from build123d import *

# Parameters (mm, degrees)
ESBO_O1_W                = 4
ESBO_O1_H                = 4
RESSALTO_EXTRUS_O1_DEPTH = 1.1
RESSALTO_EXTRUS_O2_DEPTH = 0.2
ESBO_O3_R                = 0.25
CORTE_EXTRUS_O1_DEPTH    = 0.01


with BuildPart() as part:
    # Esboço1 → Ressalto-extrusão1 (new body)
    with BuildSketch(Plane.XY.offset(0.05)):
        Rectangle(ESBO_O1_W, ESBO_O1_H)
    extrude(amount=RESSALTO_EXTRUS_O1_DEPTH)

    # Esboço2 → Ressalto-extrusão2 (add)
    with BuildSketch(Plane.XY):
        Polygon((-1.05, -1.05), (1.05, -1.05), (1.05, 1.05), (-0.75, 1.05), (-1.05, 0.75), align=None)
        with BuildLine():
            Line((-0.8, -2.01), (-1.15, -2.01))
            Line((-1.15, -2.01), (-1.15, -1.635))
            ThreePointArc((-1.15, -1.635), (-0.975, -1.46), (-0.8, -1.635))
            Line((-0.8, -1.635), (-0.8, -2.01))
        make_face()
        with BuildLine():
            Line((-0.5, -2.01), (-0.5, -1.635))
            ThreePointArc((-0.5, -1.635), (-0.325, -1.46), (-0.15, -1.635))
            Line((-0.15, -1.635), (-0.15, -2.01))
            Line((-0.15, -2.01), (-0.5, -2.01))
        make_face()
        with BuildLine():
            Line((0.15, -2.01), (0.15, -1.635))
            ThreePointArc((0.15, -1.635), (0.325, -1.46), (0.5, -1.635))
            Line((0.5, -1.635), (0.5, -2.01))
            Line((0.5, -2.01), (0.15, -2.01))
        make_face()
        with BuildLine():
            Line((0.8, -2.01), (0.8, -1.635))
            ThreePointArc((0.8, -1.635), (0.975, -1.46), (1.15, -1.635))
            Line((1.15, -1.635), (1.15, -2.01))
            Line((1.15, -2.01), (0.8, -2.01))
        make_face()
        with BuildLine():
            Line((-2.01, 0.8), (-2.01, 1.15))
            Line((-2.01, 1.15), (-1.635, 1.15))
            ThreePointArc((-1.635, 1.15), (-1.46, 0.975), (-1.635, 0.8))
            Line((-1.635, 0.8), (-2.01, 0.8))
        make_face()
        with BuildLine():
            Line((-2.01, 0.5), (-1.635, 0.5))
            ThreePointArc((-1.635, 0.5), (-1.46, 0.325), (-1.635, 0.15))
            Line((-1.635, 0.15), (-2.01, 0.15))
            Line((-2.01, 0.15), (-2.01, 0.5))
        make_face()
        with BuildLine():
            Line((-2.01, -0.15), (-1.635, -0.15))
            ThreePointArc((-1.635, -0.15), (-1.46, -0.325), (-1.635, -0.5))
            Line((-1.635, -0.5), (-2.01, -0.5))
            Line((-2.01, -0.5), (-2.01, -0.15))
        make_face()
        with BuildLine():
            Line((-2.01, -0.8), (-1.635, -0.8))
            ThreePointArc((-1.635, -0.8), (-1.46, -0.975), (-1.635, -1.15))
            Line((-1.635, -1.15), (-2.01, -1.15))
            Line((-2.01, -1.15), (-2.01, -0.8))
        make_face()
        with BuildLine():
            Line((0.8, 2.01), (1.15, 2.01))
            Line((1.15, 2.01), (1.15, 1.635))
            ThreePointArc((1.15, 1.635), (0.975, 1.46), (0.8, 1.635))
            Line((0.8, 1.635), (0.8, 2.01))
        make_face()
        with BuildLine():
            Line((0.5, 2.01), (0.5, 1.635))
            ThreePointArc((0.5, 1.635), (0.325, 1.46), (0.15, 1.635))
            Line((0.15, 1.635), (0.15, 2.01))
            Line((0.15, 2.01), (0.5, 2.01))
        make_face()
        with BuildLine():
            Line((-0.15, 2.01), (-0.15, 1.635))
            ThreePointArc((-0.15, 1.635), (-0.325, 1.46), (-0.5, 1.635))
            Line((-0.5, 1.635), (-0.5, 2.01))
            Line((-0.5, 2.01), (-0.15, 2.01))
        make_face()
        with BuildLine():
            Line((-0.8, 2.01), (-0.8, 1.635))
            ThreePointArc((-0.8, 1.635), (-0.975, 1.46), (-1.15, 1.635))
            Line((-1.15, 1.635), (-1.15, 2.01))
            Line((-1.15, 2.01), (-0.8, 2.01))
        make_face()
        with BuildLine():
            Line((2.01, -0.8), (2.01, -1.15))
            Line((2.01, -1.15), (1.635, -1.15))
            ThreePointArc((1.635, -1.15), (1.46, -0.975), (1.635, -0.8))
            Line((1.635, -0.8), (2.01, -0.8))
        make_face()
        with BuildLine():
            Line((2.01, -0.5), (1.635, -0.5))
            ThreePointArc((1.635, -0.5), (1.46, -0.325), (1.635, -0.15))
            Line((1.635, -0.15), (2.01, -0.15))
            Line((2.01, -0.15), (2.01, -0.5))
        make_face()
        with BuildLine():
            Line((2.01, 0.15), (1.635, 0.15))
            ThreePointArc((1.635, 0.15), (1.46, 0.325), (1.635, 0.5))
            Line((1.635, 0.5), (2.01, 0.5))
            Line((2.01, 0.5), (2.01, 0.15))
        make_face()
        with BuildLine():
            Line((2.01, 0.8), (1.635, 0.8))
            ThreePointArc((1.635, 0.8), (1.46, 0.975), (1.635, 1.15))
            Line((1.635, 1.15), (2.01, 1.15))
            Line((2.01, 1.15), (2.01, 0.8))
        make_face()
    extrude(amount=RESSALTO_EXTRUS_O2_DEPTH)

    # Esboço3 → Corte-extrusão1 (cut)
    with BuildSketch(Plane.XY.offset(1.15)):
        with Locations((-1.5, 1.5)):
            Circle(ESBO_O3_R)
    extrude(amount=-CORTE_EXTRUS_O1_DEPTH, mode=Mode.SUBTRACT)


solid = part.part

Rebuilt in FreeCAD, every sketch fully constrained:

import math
import FreeCAD as App
import Part
import Sketcher

V = App.Vector
Q = App.Units.Quantity

doc = App.newDocument("Part")
body = doc.addObject("PartDesign::Body", "Body")

# Sketch on XY plane
sketch1 = body.newObject("Sketcher::SketchObject", "Sketch")
sketch1.AttachmentSupport = (doc.getObject("XY_Plane"), [""])
sketch1.MapMode = "FlatFace"
sketch1.AttachmentOffset = App.Placement(V(0, 0, 0.05), App.Rotation())
sketch1.addGeometry([
    Part.LineSegment(V(-2, 2, 0), V(-2, -2, 0)),
    Part.LineSegment(V(-2, -2, 0), V(2, -2, 0)),
    Part.LineSegment(V(2, -2, 0), V(2, 2, 0)),
    Part.LineSegment(V(2, 2, 0), V(-2, 2, 0)),
], False)
sketch1.addConstraint([
    Sketcher.Constraint("Coincident", 0, 2, 1, 1),
    Sketcher.Constraint("Coincident", 1, 2, 2, 1),
    Sketcher.Constraint("Coincident", 2, 2, 3, 1),
    Sketcher.Constraint("Coincident", 3, 2, 0, 1),
    Sketcher.Constraint("Vertical", 0),
    Sketcher.Constraint("Horizontal", 1),
    Sketcher.Constraint("Vertical", 2),
    Sketcher.Constraint("Horizontal", 3),
    Sketcher.Constraint("Symmetric", 0, 2, 2, 2, -1, 1),
    Sketcher.Constraint("Equal", 3, 0),
    Sketcher.Constraint("DistanceX", 1, 1, 1, 2, Q("4 mm")),
])
pad1 = body.newObject("PartDesign::Pad", "Pad")
pad1.Profile = sketch1
pad1.Length = 1.1

# Sketch on XY plane
sketch2 = body.newObject("Sketcher::SketchObject", "Sketch001")
sketch2.AttachmentSupport = (doc.getObject("XY_Plane"), [""])
sketch2.MapMode = "FlatFace"
sketch2.addGeometry([
    Part.LineSegment(V(-1.05, -1.05, 0), V(1.05, -1.05, 0)),  # 0
    Part.LineSegment(V(1.05, -1.05, 0), V(1.05, 1.05, 0)),  # 1
    Part.LineSegment(V(1.05, 1.05, 0), V(-0.75, 1.05, 0)),  # 2
    Part.LineSegment(V(-0.75, 1.05, 0), V(-1.05, 0.75, 0)),  # 3
    Part.LineSegment(V(-1.05, 0.75, 0), V(-1.05, -1.05, 0)),  # 4
    Part.LineSegment(V(-1.15, -2.01, 0), V(-0.8, -2.01, 0)),  # 5
    Part.LineSegment(V(-0.8, -2.01, 0), V(-0.8, -1.64, 0)),  # 6
    Part.ArcOfCircle(Part.Circle(V(-0.97, -1.64, 0), V(0, 0, 1), 0.17), math.radians(0), math.radians(180)),  # 7
    Part.LineSegment(V(-1.15, -1.64, 0), V(-1.15, -2.01, 0)),  # 8
    Part.LineSegment(V(-0.5, -1.64, 0), V(-0.5, -2.01, 0)),  # 9
    Part.LineSegment(V(-0.5, -2.01, 0), V(-0.15, -2.01, 0)),  # 10
    Part.LineSegment(V(-0.15, -2.01, 0), V(-0.15, -1.64, 0)),  # 11
    Part.ArcOfCircle(Part.Circle(V(-0.33, -1.64, 0), V(0, 0, 1), 0.17), math.radians(0), math.radians(180)),  # 12
    Part.LineSegment(V(0.15, -1.64, 0), V(0.15, -2.01, 0)),  # 13
    Part.LineSegment(V(0.15, -2.01, 0), V(0.5, -2.01, 0)),  # 14
    Part.LineSegment(V(0.5, -2.01, 0), V(0.5, -1.64, 0)),  # 15
    Part.ArcOfCircle(Part.Circle(V(0.33, -1.64, 0), V(0, 0, 1), 0.17), math.radians(0), math.radians(180)),  # 16
    Part.LineSegment(V(0.8, -1.64, 0), V(0.8, -2.01, 0)),  # 17
    Part.LineSegment(V(0.8, -2.01, 0), V(1.15, -2.01, 0)),  # 18
    Part.LineSegment(V(1.15, -2.01, 0), V(1.15, -1.64, 0)),  # 19
    Part.ArcOfCircle(Part.Circle(V(0.97, -1.64, 0), V(0, 0, 1), 0.17), math.radians(0), math.radians(180)),  # 20
    Part.LineSegment(V(-2.01, 1.15, 0), V(-2.01, 0.8, 0)),  # 21
    Part.LineSegment(V(-2.01, 0.8, 0), V(-1.64, 0.8, 0)),  # 22
    Part.ArcOfCircle(Part.Circle(V(-1.64, 0.97, 0), V(0, 0, 1), 0.17), math.radians(-90), math.radians(90)),  # 23
    Part.LineSegment(V(-1.64, 1.15, 0), V(-2.01, 1.15, 0)),  # 24
    Part.LineSegment(V(-1.64, 0.5, 0), V(-2.01, 0.5, 0)),  # 25
    Part.LineSegment(V(-2.01, 0.5, 0), V(-2.01, 0.15, 0)),  # 26
    Part.LineSegment(V(-2.01, 0.15, 0), V(-1.64, 0.15, 0)),  # 27
    Part.ArcOfCircle(Part.Circle(V(-1.64, 0.33, 0), V(0, 0, 1), 0.17), math.radians(-90), math.radians(90)),  # 28
    Part.LineSegment(V(-1.64, -0.15, 0), V(-2.01, -0.15, 0)),  # 29
    Part.LineSegment(V(-2.01, -0.15, 0), V(-2.01, -0.5, 0)),  # 30
    Part.LineSegment(V(-2.01, -0.5, 0), V(-1.64, -0.5, 0)),  # 31
    Part.ArcOfCircle(Part.Circle(V(-1.64, -0.33, 0), V(0, 0, 1), 0.17), math.radians(-90), math.radians(90)),  # 32
    Part.LineSegment(V(-1.64, -0.8, 0), V(-2.01, -0.8, 0)),  # 33
    Part.LineSegment(V(-2.01, -0.8, 0), V(-2.01, -1.15, 0)),  # 34
    Part.LineSegment(V(-2.01, -1.15, 0), V(-1.64, -1.15, 0)),  # 35
    Part.ArcOfCircle(Part.Circle(V(-1.64, -0.97, 0), V(0, 0, 1), 0.17), math.radians(-90), math.radians(90)),  # 36
    Part.LineSegment(V(1.15, 2.01, 0), V(0.8, 2.01, 0)),  # 37
    Part.LineSegment(V(0.8, 2.01, 0), V(0.8, 1.64, 0)),  # 38
    Part.ArcOfCircle(Part.Circle(V(0.97, 1.64, 0), V(0, 0, 1), 0.17), math.radians(180), math.radians(360)),  # 39
    Part.LineSegment(V(1.15, 1.64, 0), V(1.15, 2.01, 0)),  # 40
    Part.LineSegment(V(0.5, 1.64, 0), V(0.5, 2.01, 0)),  # 41
    Part.LineSegment(V(0.5, 2.01, 0), V(0.15, 2.01, 0)),  # 42
    Part.LineSegment(V(0.15, 2.01, 0), V(0.15, 1.64, 0)),  # 43
    Part.ArcOfCircle(Part.Circle(V(0.33, 1.64, 0), V(0, 0, 1), 0.17), math.radians(180), math.radians(360)),  # 44
    Part.LineSegment(V(-0.15, 1.64, 0), V(-0.15, 2.01, 0)),  # 45
    Part.LineSegment(V(-0.15, 2.01, 0), V(-0.5, 2.01, 0)),  # 46
    Part.LineSegment(V(-0.5, 2.01, 0), V(-0.5, 1.64, 0)),  # 47
    Part.ArcOfCircle(Part.Circle(V(-0.33, 1.64, 0), V(0, 0, 1), 0.17), math.radians(180), math.radians(360)),  # 48
    Part.LineSegment(V(-0.8, 1.64, 0), V(-0.8, 2.01, 0)),  # 49
    Part.LineSegment(V(-0.8, 2.01, 0), V(-1.15, 2.01, 0)),  # 50
    Part.LineSegment(V(-1.15, 2.01, 0), V(-1.15, 1.64, 0)),  # 51
    Part.ArcOfCircle(Part.Circle(V(-0.97, 1.64, 0), V(0, 0, 1), 0.17), math.radians(180), math.radians(360)),  # 52
    Part.LineSegment(V(2.01, -1.15, 0), V(2.01, -0.8, 0)),  # 53
    Part.LineSegment(V(2.01, -0.8, 0), V(1.64, -0.8, 0)),  # 54
    Part.ArcOfCircle(Part.Circle(V(1.64, -0.97, 0), V(0, 0, 1), 0.17), math.radians(90), math.radians(270)),  # 55
    Part.LineSegment(V(1.64, -1.15, 0), V(2.01, -1.15, 0)),  # 56
    Part.LineSegment(V(1.64, -0.5, 0), V(2.01, -0.5, 0)),  # 57
    Part.LineSegment(V(2.01, -0.5, 0), V(2.01, -0.15, 0)),  # 58
    Part.LineSegment(V(2.01, -0.15, 0), V(1.64, -0.15, 0)),  # 59
    Part.ArcOfCircle(Part.Circle(V(1.64, -0.33, 0), V(0, 0, 1), 0.17), math.radians(90), math.radians(270)),  # 60
    Part.LineSegment(V(1.64, 0.15, 0), V(2.01, 0.15, 0)),  # 61
    Part.LineSegment(V(2.01, 0.15, 0), V(2.01, 0.5, 0)),  # 62
    Part.LineSegment(V(2.01, 0.5, 0), V(1.64, 0.5, 0)),  # 63
    Part.ArcOfCircle(Part.Circle(V(1.64, 0.33, 0), V(0, 0, 1), 0.17), math.radians(90), math.radians(270)),  # 64
    Part.LineSegment(V(1.64, 0.8, 0), V(2.01, 0.8, 0)),  # 65
    Part.LineSegment(V(2.01, 0.8, 0), V(2.01, 1.15, 0)),  # 66
    Part.LineSegment(V(2.01, 1.15, 0), V(1.64, 1.15, 0)),  # 67
    Part.ArcOfCircle(Part.Circle(V(1.64, 0.97, 0), V(0, 0, 1), 0.17), math.radians(90), math.radians(270)),  # 68
], False)
sketch2.addConstraint([
    Sketcher.Constraint("Coincident", 0, 2, 1, 1),
    Sketcher.Constraint("Coincident", 1, 2, 2, 1),
    Sketcher.Constraint("Coincident", 2, 2, 3, 1),
    Sketcher.Constraint("Coincident", 3, 2, 4, 1),
    Sketcher.Constraint("Coincident", 4, 2, 0, 1),
    Sketcher.Constraint("Coincident", 5, 2, 6, 1),
    Sketcher.Constraint("Tangent", 6, 2, 7, 1),
    Sketcher.Constraint("Tangent", 7, 2, 8, 1),
    Sketcher.Constraint("Coincident", 8, 2, 5, 1),
    Sketcher.Constraint("Coincident", 9, 2, 10, 1),
    Sketcher.Constraint("Coincident", 10, 2, 11, 1),
    Sketcher.Constraint("Tangent", 11, 2, 12, 1),
    Sketcher.Constraint("Tangent", 12, 2, 9, 1),
    Sketcher.Constraint("Coincident", 13, 2, 14, 1),
    Sketcher.Constraint("Coincident", 14, 2, 15, 1),
    Sketcher.Constraint("Tangent", 15, 2, 16, 1),
    Sketcher.Constraint("Tangent", 16, 2, 13, 1),
    Sketcher.Constraint("Coincident", 17, 2, 18, 1),
    Sketcher.Constraint("Coincident", 18, 2, 19, 1),
    Sketcher.Constraint("Tangent", 19, 2, 20, 1),
    Sketcher.Constraint("Tangent", 20, 2, 17, 1),
    Sketcher.Constraint("Coincident", 21, 2, 22, 1),
    Sketcher.Constraint("Tangent", 22, 2, 23, 1),
    Sketcher.Constraint("Tangent", 23, 2, 24, 1),
    Sketcher.Constraint("Coincident", 24, 2, 21, 1),
    Sketcher.Constraint("Coincident", 25, 2, 26, 1),
    Sketcher.Constraint("Coincident", 26, 2, 27, 1),
    Sketcher.Constraint("Tangent", 27, 2, 28, 1),
    Sketcher.Constraint("Tangent", 28, 2, 25, 1),
    Sketcher.Constraint("Coincident", 29, 2, 30, 1),
    Sketcher.Constraint("Coincident", 30, 2, 31, 1),
    Sketcher.Constraint("Tangent", 31, 2, 32, 1),
    Sketcher.Constraint("Tangent", 32, 2, 29, 1),
    Sketcher.Constraint("Coincident", 33, 2, 34, 1),
    Sketcher.Constraint("Coincident", 34, 2, 35, 1),
    Sketcher.Constraint("Tangent", 35, 2, 36, 1),
    Sketcher.Constraint("Tangent", 36, 2, 33, 1),
    Sketcher.Constraint("Coincident", 37, 2, 38, 1),
    Sketcher.Constraint("Tangent", 38, 2, 39, 1),
    Sketcher.Constraint("Tangent", 39, 2, 40, 1),
    Sketcher.Constraint("Coincident", 40, 2, 37, 1),
    Sketcher.Constraint("Coincident", 41, 2, 42, 1),
    Sketcher.Constraint("Coincident", 42, 2, 43, 1),
    Sketcher.Constraint("Tangent", 43, 2, 44, 1),
    Sketcher.Constraint("Tangent", 44, 2, 41, 1),
    Sketcher.Constraint("Coincident", 45, 2, 46, 1),
    Sketcher.Constraint("Coincident", 46, 2, 47, 1),
    Sketcher.Constraint("Tangent", 47, 2, 48, 1),
    Sketcher.Constraint("Tangent", 48, 2, 45, 1),
    Sketcher.Constraint("Coincident", 49, 2, 50, 1),
    Sketcher.Constraint("Coincident", 50, 2, 51, 1),
    Sketcher.Constraint("Tangent", 51, 2, 52, 1),
    Sketcher.Constraint("Tangent", 52, 2, 49, 1),
    Sketcher.Constraint("Coincident", 53, 2, 54, 1),
    Sketcher.Constraint("Tangent", 54, 2, 55, 1),
    Sketcher.Constraint("Tangent", 55, 2, 56, 1),
    Sketcher.Constraint("Coincident", 56, 2, 53, 1),
    Sketcher.Constraint("Coincident", 57, 2, 58, 1),
    Sketcher.Constraint("Coincident", 58, 2, 59, 1),
    Sketcher.Constraint("Tangent", 59, 2, 60, 1),
    Sketcher.Constraint("Tangent", 60, 2, 57, 1),
    Sketcher.Constraint("Coincident", 61, 2, 62, 1),
    Sketcher.Constraint("Coincident", 62, 2, 63, 1),
    Sketcher.Constraint("Tangent", 63, 2, 64, 1),
    Sketcher.Constraint("Tangent", 64, 2, 61, 1),
    Sketcher.Constraint("Coincident", 65, 2, 66, 1),
    Sketcher.Constraint("Coincident", 66, 2, 67, 1),
    Sketcher.Constraint("Tangent", 67, 2, 68, 1),
    Sketcher.Constraint("Tangent", 68, 2, 65, 1),
    Sketcher.Constraint("Horizontal", 0),
    Sketcher.Constraint("Vertical", 1),
    Sketcher.Constraint("Horizontal", 2),
    Sketcher.Constraint("Vertical", 4),
    Sketcher.Constraint("Horizontal", 5),
    Sketcher.Constraint("Vertical", 6),
    Sketcher.Constraint("Vertical", 8),
    Sketcher.Constraint("Vertical", 9),
    Sketcher.Constraint("Horizontal", 10),
    Sketcher.Constraint("Vertical", 11),
    Sketcher.Constraint("Vertical", 13),
    Sketcher.Constraint("Horizontal", 14),
    Sketcher.Constraint("Vertical", 15),
    Sketcher.Constraint("Vertical", 17),
    Sketcher.Constraint("Horizontal", 18),
    Sketcher.Constraint("Vertical", 19),
    Sketcher.Constraint("Vertical", 21),
    Sketcher.Constraint("Horizontal", 22),
    Sketcher.Constraint("Horizontal", 24),
    Sketcher.Constraint("Horizontal", 25),
    Sketcher.Constraint("Vertical", 26),
    Sketcher.Constraint("Horizontal", 27),
    Sketcher.Constraint("Horizontal", 29),
    Sketcher.Constraint("Vertical", 30),
    Sketcher.Constraint("Horizontal", 31),
    Sketcher.Constraint("Horizontal", 33),
    Sketcher.Constraint("Vertical", 34),
    Sketcher.Constraint("Horizontal", 35),
    Sketcher.Constraint("Horizontal", 37),
    Sketcher.Constraint("Vertical", 38),
    Sketcher.Constraint("Vertical", 40),
    Sketcher.Constraint("Vertical", 41),
    Sketcher.Constraint("Horizontal", 42),
    Sketcher.Constraint("Vertical", 43),
    Sketcher.Constraint("Vertical", 45),
    Sketcher.Constraint("Horizontal", 46),
    Sketcher.Constraint("Vertical", 47),
    Sketcher.Constraint("Vertical", 49),
    Sketcher.Constraint("Horizontal", 50),
    Sketcher.Constraint("Vertical", 51),
    Sketcher.Constraint("Vertical", 53),
    Sketcher.Constraint("Horizontal", 54),
    Sketcher.Constraint("Horizontal", 56),
    Sketcher.Constraint("Horizontal", 57),
    Sketcher.Constraint("Vertical", 58),
    Sketcher.Constraint("Horizontal", 59),
    Sketcher.Constraint("Horizontal", 61),
    Sketcher.Constraint("Vertical", 62),
    Sketcher.Constraint("Horizontal", 63),
    Sketcher.Constraint("Horizontal", 65),
    Sketcher.Constraint("Vertical", 66),
    Sketcher.Constraint("Horizontal", 67),
    Sketcher.Constraint("Equal", 7, 12),
    Sketcher.Constraint("Equal", 12, 16),
    Sketcher.Constraint("Equal", 16, 20),
    Sketcher.Constraint("Equal", 20, 23),
    Sketcher.Constraint("Equal", 23, 28),
    Sketcher.Constraint("Equal", 28, 32),
    Sketcher.Constraint("Equal", 32, 36),
    Sketcher.Constraint("Equal", 36, 39),
    Sketcher.Constraint("Equal", 39, 44),
    Sketcher.Constraint("Equal", 44, 48),
    Sketcher.Constraint("Equal", 48, 52),
    Sketcher.Constraint("Equal", 52, 55),
    Sketcher.Constraint("Equal", 55, 60),
    Sketcher.Constraint("Equal", 60, 64),
    Sketcher.Constraint("Equal", 64, 68),
    Sketcher.Constraint("Symmetric", 7, 3, 39, 3, -1, 1),
    Sketcher.Constraint("Symmetric", 12, 3, 44, 3, -1, 1),
    Sketcher.Constraint("Symmetric", 16, 3, 48, 3, -1, 1),
    Sketcher.Constraint("Symmetric", 20, 3, 52, 3, -1, 1),
    Sketcher.Constraint("Symmetric", 23, 3, 55, 3, -1, 1),
    Sketcher.Constraint("Symmetric", 28, 3, 60, 3, -1, 1),
    Sketcher.Constraint("Symmetric", 32, 3, 64, 3, -1, 1),
    Sketcher.Constraint("Symmetric", 36, 3, 68, 3, -1, 1),
    Sketcher.Constraint("Symmetric", 1, 2, 4, 2, -1, 1),
    Sketcher.Constraint("Symmetric", 12, 3, 16, 3, -2),
    Sketcher.Constraint("Symmetric", 7, 3, 20, 3, -2),
    Sketcher.Constraint("Symmetric", 36, 3, 55, 3, -2),
    Sketcher.Constraint("Symmetric", 32, 3, 60, 3, -2),
    Sketcher.Constraint("Horizontal", 7, 3, 12, 3),
    Sketcher.Constraint("Horizontal", 8, 2, 9, 2),
    Sketcher.Constraint("Horizontal", 10, 2, 13, 2),
    Sketcher.Constraint("Horizontal", 14, 2, 17, 2),
    Sketcher.Constraint("Horizontal", 40, 2, 41, 2),
    Sketcher.Constraint("Horizontal", 42, 2, 45, 2),
    Sketcher.Constraint("Horizontal", 46, 2, 49, 2),
    Sketcher.Constraint("Vertical", 23, 3, 28, 3),
    Sketcher.Constraint("Vertical", 24, 2, 25, 2),
    Sketcher.Constraint("Vertical", 26, 2, 29, 2),
    Sketcher.Constraint("Vertical", 30, 2, 33, 2),
    Sketcher.Constraint("Vertical", 56, 2, 57, 2),
    Sketcher.Constraint("Vertical", 58, 2, 61, 2),
    Sketcher.Constraint("Vertical", 62, 2, 65, 2),
    Sketcher.Constraint("Equal", 35, 54),
    Sketcher.Constraint("Equal", 0, 1),
    Sketcher.Constraint("Equal", 2, 4),
    Sketcher.Constraint("Equal", 67, 6),
    Sketcher.Constraint("Equal", 19, 38),
    Sketcher.Constraint("DistanceX", 0, 1, 0, 2, Q("2.1 mm")),
    Sketcher.Constraint("DistanceX", 2, 2, 2, 1, Q("1.8 mm")),
    Sketcher.Constraint("Radius", 7, Q("0.175 mm")),
    Sketcher.Constraint("DistanceX", 5, 2, -1, 1, Q("0.8 mm")),
    Sketcher.Constraint("DistanceX", 9, 2, -1, 1, Q("0.5 mm")),
    Sketcher.Constraint("DistanceY", -1, 1, 21, 2, Q("0.8 mm")),
    Sketcher.Constraint("DistanceY", -1, 1, 25, 2, Q("0.5 mm")),
    Sketcher.Constraint("DistanceX", 22, 1, 22, 2, Q("0.375 mm")),
    Sketcher.Constraint("DistanceY", 5, 2, -1, 1, Q("2.01 mm")),
    Sketcher.Constraint("DistanceX", 21, 2, -1, 1, Q("2.01 mm")),
])
pad2 = body.newObject("PartDesign::Pad", "Pad001")
pad2.Profile = sketch2
pad2.Length = 0.2

# Sketch on XY plane
sketch3 = body.newObject("Sketcher::SketchObject", "Sketch002")
sketch3.AttachmentSupport = (doc.getObject("XY_Plane"), [""])
sketch3.MapMode = "FlatFace"
sketch3.AttachmentOffset = App.Placement(V(0, 0, 1.15), App.Rotation())
sketch3.addGeometry(Part.Circle(V(-1.5, 1.5, 0), V(0, 0, 1), 0.25), False)
sketch3.addConstraint([
    Sketcher.Constraint("Diameter", 0, Q("0.5 mm")),
    Sketcher.Constraint("DistanceX", 0, 3, -1, 1, Q("1.5 mm")),
    Sketcher.Constraint("DistanceY", -1, 1, 0, 3, Q("1.5 mm")),
])
pocket1 = body.newObject("PartDesign::Pocket", "Pocket")
pocket1.Profile = sketch3
pocket1.Length = 0.01

doc.recompute()
